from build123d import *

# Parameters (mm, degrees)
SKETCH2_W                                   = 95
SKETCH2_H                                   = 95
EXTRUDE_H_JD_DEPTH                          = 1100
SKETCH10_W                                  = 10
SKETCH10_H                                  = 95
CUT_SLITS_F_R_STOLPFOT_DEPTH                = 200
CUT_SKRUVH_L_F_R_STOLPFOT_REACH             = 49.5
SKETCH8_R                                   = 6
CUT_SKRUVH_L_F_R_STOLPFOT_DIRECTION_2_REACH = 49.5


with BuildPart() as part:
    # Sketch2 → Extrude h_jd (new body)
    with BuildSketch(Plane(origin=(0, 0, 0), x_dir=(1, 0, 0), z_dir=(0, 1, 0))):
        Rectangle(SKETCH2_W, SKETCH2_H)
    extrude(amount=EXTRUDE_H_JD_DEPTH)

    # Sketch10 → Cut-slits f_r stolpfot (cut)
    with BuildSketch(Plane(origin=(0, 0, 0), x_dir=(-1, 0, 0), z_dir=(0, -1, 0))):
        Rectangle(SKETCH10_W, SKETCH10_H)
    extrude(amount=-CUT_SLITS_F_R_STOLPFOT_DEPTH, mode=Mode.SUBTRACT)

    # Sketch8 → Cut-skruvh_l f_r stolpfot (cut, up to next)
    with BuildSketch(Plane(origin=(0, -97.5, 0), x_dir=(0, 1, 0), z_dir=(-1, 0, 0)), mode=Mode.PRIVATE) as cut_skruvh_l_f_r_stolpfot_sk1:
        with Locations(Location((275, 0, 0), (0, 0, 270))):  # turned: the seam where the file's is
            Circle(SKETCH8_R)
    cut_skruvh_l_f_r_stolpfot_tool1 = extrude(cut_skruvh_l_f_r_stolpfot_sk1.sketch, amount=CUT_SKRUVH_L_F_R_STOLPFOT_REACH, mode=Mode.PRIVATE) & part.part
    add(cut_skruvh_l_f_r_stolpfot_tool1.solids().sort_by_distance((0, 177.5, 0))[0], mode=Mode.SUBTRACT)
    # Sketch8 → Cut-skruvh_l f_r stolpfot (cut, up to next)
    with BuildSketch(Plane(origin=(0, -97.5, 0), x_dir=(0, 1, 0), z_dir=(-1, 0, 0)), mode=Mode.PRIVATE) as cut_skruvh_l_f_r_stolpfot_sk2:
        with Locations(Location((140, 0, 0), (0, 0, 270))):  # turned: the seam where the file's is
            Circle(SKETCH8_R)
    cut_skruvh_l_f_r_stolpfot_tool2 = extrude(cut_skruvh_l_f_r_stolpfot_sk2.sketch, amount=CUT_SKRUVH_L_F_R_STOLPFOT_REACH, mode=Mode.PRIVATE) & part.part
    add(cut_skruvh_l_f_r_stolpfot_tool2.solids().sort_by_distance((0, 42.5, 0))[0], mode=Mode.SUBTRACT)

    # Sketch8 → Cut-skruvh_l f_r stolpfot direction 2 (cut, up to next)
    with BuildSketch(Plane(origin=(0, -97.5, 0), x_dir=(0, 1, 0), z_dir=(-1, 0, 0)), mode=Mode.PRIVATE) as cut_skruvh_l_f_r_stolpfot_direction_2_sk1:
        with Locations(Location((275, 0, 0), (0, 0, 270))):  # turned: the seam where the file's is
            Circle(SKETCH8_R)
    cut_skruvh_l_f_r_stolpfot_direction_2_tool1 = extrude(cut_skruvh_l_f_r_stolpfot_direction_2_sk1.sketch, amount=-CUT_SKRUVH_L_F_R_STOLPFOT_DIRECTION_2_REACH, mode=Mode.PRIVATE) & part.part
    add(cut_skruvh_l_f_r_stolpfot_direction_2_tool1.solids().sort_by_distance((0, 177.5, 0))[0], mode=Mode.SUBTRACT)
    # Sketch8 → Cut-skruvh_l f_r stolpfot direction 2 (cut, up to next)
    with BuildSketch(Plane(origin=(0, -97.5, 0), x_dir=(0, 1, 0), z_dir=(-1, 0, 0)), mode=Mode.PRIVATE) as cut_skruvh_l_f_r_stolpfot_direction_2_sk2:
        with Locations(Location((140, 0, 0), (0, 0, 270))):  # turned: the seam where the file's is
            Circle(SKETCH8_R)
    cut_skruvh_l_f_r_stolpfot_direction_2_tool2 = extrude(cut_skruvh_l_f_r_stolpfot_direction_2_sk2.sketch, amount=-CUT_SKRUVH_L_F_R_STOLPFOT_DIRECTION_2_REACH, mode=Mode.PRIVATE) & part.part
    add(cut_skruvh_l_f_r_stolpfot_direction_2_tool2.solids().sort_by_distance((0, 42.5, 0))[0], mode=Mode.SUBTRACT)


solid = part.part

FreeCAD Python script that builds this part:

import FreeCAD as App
import Part
import Sketcher

V = App.Vector
Q = App.Units.Quantity


def add_polygon(sketch, points):
    """Adds a closed chain of lines whose ends are joined by coincident constraints."""
    first, n = sketch.GeometryCount, len(points)
    for a, b in zip(points, points[1:] + points[:1]):
        sketch.addGeometry(Part.LineSegment(App.Vector(*a, 0), App.Vector(*b, 0)), False)
    for i in range(n):
        sketch.addConstraint(Sketcher.Constraint("Coincident", first + i, 2, first + (i + 1) % n, 1))

doc = App.newDocument("Part")
body = doc.addObject("PartDesign::Body", "Body")

# Sketch on XZ plane
sketch1 = doc.addObject("Sketcher::SketchObject", "Sketch")
body.addObject(sketch1)
sketch1.AttachmentSupport = (doc.XZ_Plane, [""])
sketch1.MapMode = "FlatFace"
add_polygon(sketch1, [(-48, -48), (-48, 48), (48, 48), (48, -48)])  # lines 0-3
sketch1.addConstraint(Sketcher.Constraint("Vertical", 0))
sketch1.addConstraint(Sketcher.Constraint("Horizontal", 1))
sketch1.addConstraint(Sketcher.Constraint("Vertical", 2))
sketch1.addConstraint(Sketcher.Constraint("Horizontal", 3))
sketch1.addConstraint(Sketcher.Constraint("Symmetric", 0, 2, 2, 2, -1, 1))
sketch1.addConstraint(Sketcher.Constraint("Equal", 3, 0))
sketch1.addConstraint(Sketcher.Constraint("DistanceX", 1, 1, 1, 2, Q("95 mm")))
pad1 = doc.addObject("PartDesign::Pad", "Pad")
body.addObject(pad1)
pad1.Profile = sketch1
pad1.Length = 1100
pad1.Reversed = True

# Sketch on XZ plane
sketch2 = doc.addObject("Sketcher::SketchObject", "Sketch001")
body.addObject(sketch2)
sketch2.AttachmentSupport = (doc.XZ_Plane, [""])
sketch2.MapMode = "FlatFace"
add_polygon(sketch2, [(5, -48), (5, 48), (-5, 48), (-5, -48)])  # lines 0-3
sketch2.addConstraint(Sketcher.Constraint("Vertical", 0))
sketch2.addConstraint(Sketcher.Constraint("Horizontal", 1))
sketch2.addConstraint(Sketcher.Constraint("Vertical", 2))
sketch2.addConstraint(Sketcher.Constraint("Horizontal", 3))
sketch2.addConstraint(Sketcher.Constraint("Symmetric", 0, 2, 2, 2, -1, 1))
sketch2.addConstraint(Sketcher.Constraint("DistanceX", 1, 2, 1, 1, Q("10 mm")))
sketch2.addConstraint(Sketcher.Constraint("DistanceY", 0, 1, 0, 2, Q("95 mm")))
pocket1 = doc.addObject("PartDesign::Pocket", "Pocket")
body.addObject(pocket1)
pocket1.Profile = sketch2
pocket1.Length = 200

# Sketch on YZ plane
sketch3 = doc.addObject("Sketcher::SketchObject", "Sketch002")
body.addObject(sketch3)
sketch3.AttachmentSupport = (doc.YZ_Plane, [""])
sketch3.MapMode = "FlatFace"
sketch3.addGeometry(Part.Circle(V(178, 0, 0), V(0, 0, 1), 6), False)
sketch3.addConstraint(Sketcher.Constraint("PointOnObject", 0, 3, -1))
sketch3.addConstraint(Sketcher.Constraint("Diameter", 0, Q("12 mm")))
sketch3.addConstraint(Sketcher.Constraint("DistanceX", -1, 1, 0, 3, Q("177.5 mm")))
pocket2 = doc.addObject("PartDesign::Pocket", "Pocket001")
body.addObject(pocket2)
pocket2.Profile = sketch3
pocket2.Length = 47.5

# Sketch on YZ plane
sketch4 = doc.addObject("Sketcher::SketchObject", "Sketch003")
body.addObject(sketch4)
sketch4.AttachmentSupport = (doc.YZ_Plane, [""])
sketch4.MapMode = "FlatFace"
sketch4.addGeometry(Part.Circle(V(42, 0, 0), V(0, 0, 1), 6), False)
sketch4.addConstraint(Sketcher.Constraint("PointOnObject", 0, 3, -1))
sketch4.addConstraint(Sketcher.Constraint("Diameter", 0, Q("12 mm")))
sketch4.addConstraint(Sketcher.Constraint("DistanceX", -1, 1, 0, 3, Q("42.5 mm")))
pocket3 = doc.addObject("PartDesign::Pocket", "Pocket002")
body.addObject(pocket3)
pocket3.Profile = sketch4
pocket3.Length = 47.5

# Sketch on YZ plane
sketch5 = doc.addObject("Sketcher::SketchObject", "Sketch004")
body.addObject(sketch5)
sketch5.AttachmentSupport = (doc.YZ_Plane, [""])
sketch5.MapMode = "FlatFace"
sketch5.addGeometry(Part.Circle(V(178, 0, 0), V(0, 0, 1), 6), False)
sketch5.addConstraint(Sketcher.Constraint("PointOnObject", 0, 3, -1))
sketch5.addConstraint(Sketcher.Constraint("Diameter", 0, Q("12 mm")))
sketch5.addConstraint(Sketcher.Constraint("DistanceX", -1, 1, 0, 3, Q("177.5 mm")))
pocket4 = doc.addObject("PartDesign::Pocket", "Pocket003")
body.addObject(pocket4)
pocket4.Profile = sketch5
pocket4.Length = 47.5
pocket4.Reversed = True

# Sketch on YZ plane
sketch6 = doc.addObject("Sketcher::SketchObject", "Sketch005")
body.addObject(sketch6)
sketch6.AttachmentSupport = (doc.YZ_Plane, [""])
sketch6.MapMode = "FlatFace"
sketch6.addGeometry(Part.Circle(V(42, 0, 0), V(0, 0, 1), 6), False)
sketch6.addConstraint(Sketcher.Constraint("PointOnObject", 0, 3, -1))
sketch6.addConstraint(Sketcher.Constraint("Diameter", 0, Q("12 mm")))
sketch6.addConstraint(Sketcher.Constraint("DistanceX", -1, 1, 0, 3, Q("42.5 mm")))
pocket5 = doc.addObject("PartDesign::Pocket", "Pocket004")
body.addObject(pocket5)
pocket5.Profile = sketch6
pocket5.Length = 47.5
pocket5.Reversed = True

doc.recompute()
